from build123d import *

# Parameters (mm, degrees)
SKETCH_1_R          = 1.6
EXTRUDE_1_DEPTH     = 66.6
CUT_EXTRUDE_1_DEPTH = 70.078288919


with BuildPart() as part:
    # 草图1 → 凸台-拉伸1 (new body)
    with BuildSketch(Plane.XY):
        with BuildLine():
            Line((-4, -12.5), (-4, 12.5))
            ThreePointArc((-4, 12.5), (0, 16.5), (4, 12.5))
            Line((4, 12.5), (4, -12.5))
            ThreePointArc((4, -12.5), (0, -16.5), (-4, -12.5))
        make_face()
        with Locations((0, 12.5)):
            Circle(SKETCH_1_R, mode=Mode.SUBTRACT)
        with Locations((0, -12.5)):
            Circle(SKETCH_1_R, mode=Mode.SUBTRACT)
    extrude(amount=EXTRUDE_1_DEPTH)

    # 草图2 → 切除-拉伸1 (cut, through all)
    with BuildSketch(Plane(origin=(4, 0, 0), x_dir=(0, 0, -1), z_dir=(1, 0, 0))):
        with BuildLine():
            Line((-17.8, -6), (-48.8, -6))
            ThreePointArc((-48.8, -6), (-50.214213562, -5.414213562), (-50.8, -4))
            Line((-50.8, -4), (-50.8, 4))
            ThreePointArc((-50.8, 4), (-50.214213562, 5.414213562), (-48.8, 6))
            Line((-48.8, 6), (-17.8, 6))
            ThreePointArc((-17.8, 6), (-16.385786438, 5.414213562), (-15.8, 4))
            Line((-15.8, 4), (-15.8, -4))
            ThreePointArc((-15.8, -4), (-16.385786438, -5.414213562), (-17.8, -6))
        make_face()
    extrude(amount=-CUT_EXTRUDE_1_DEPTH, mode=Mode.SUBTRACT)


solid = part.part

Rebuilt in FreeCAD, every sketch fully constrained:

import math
import FreeCAD as App
import Part
import Sketcher
Q = App.Units.Quantity

doc = App.newDocument("Part")
body = doc.addObject("PartDesign::Body", "Body")

sketch1 = body.newObject("Sketcher::SketchObject", "Sketch")
sketch1.AttachmentSupport = (doc.getObject("XY_Plane"), [""])
sketch1.MapMode = "FlatFace"
sketch1.addGeometry([
    Part.LineSegment(App.Vector(-4, 12.5, 0), App.Vector(-4, -12.5, 0)),
    Part.ArcOfCircle(Part.Circle(App.Vector(0, -12.5, 0), App.Vector(0, 0, 1), 4), math.radians(180), math.radians(360)),
    Part.LineSegment(App.Vector(4, -12.5, 0), App.Vector(4, 12.5, 0)),
    Part.ArcOfCircle(Part.Circle(App.Vector(0, 12.5, 0), App.Vector(0, 0, 1), 4), math.radians(0), math.radians(180)),
    Part.Circle(App.Vector(0, -12.5, 0), App.Vector(0, 0, 1), 1.6),
    Part.Circle(App.Vector(0, 12.5, 0), App.Vector(0, 0, 1), 1.6),
], False)
sketch1.addConstraint([
    Sketcher.Constraint("Tangent", 0, 2, 1, 1),
    Sketcher.Constraint("Tangent", 1, 2, 2, 1),
    Sketcher.Constraint("Tangent", 2, 2, 3, 1),
    Sketcher.Constraint("Tangent", 3, 2, 0, 1),
    Sketcher.Constraint("Vertical", 0),
    Sketcher.Constraint("Vertical", 2),
    Sketcher.Constraint("Coincident", 4, 3, 1, 3),
    Sketcher.Constraint("Coincident", 5, 3, 3, 3),
    Sketcher.Constraint("Equal", 4, 5),
    Sketcher.Constraint("Symmetric", 1, 3, 3, 3, -1, 1),
    Sketcher.Constraint("Radius", 1, Q("4 mm")),
    Sketcher.Constraint("Diameter", 4, Q("3.2 mm")),
    Sketcher.Constraint("DistanceY", 0, 2, 0, 1, Q("25 mm")),
])
pad1 = body.newObject("PartDesign::Pad", "Pad")
pad1.Profile = sketch1
pad1.Length = 66.6

sketch2 = body.newObject("Sketcher::SketchObject", "Sketch001")
sketch2.AttachmentSupport = (doc.getObject("YZ_Plane"), [""])
sketch2.MapMode = "FlatFace"
sketch2.AttachmentOffset = App.Placement(App.Vector(0, 0, 4), App.Rotation())
sketch2.addGeometry([
    Part.LineSegment(App.Vector(-6, 48.8, 0), App.Vector(-6, 17.8, 0)),
    Part.ArcOfCircle(Part.Circle(App.Vector(-4, 17.8, 0), App.Vector(0, 0, 1), 2), math.radians(-180), math.radians(-90)),
    Part.LineSegment(App.Vector(-4, 15.8, 0), App.Vector(4, 15.8, 0)),
    Part.ArcOfCircle(Part.Circle(App.Vector(4, 17.8, 0), App.Vector(0, 0, 1), 2), math.radians(-90), math.radians(0)),
    Part.LineSegment(App.Vector(6, 17.8, 0), App.Vector(6, 48.8, 0)),
    Part.ArcOfCircle(Part.Circle(App.Vector(4, 48.8, 0), App.Vector(0, 0, 1), 2), math.radians(0), math.radians(90)),
    Part.LineSegment(App.Vector(4, 50.8, 0), App.Vector(-4, 50.8, 0)),
    Part.ArcOfCircle(Part.Circle(App.Vector(-4, 48.8, 0), App.Vector(0, 0, 1), 2), math.radians(90), math.radians(180)),
], False)
sketch2.addConstraint([
    Sketcher.Constraint("Tangent", 0, 2, 1, 1),
    Sketcher.Constraint("Tangent", 1, 2, 2, 1),
    Sketcher.Constraint("Tangent", 2, 2, 3, 1),
    Sketcher.Constraint("Tangent", 3, 2, 4, 1),
    Sketcher.Constraint("Tangent", 4, 2, 5, 1),
    Sketcher.Constraint("Tangent", 5, 2, 6, 1),
    Sketcher.Constraint("Tangent", 6, 2, 7, 1),
    Sketcher.Constraint("Tangent", 7, 2, 0, 1),
    Sketcher.Constraint("Vertical", 0),
    Sketcher.Constraint("Horizontal", 2),
    Sketcher.Constraint("Vertical", 4),
    Sketcher.Constraint("Horizontal", 6),
    Sketcher.Constraint("Equal", 1, 3),
    Sketcher.Constraint("Equal", 3, 5),
    Sketcher.Constraint("Equal", 5, 7),
    Sketcher.Constraint("Radius", 1, Q("2 mm")),
    Sketcher.Constraint("DistanceX", 2, 1, 2, 2, Q("8 mm")),
    Sketcher.Constraint("DistanceY", 0, 2, 0, 1, Q("31 mm")),
    Sketcher.Constraint("DistanceX", 1, 3, -1, 1, Q("4 mm")),
    Sketcher.Constraint("DistanceY", -1, 1, 1, 3, Q("17.8 mm")),
])
pocket1 = body.newObject("PartDesign::Pocket", "Pocket")
pocket1.Profile = sketch2
pocket1.Type = "ThroughAll"

doc.recompute()
